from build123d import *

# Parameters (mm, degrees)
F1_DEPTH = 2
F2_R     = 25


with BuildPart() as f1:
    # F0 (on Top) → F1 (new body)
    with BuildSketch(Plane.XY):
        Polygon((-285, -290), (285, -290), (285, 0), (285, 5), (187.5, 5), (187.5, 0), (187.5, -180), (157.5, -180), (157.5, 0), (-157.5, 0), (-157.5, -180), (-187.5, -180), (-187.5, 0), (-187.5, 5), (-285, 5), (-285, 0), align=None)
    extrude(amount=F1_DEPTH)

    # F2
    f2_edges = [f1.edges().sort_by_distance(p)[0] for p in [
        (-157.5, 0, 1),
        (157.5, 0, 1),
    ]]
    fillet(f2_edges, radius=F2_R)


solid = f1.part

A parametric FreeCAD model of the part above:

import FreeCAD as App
import Part
import Sketcher


def edges_at(feature, points):
    """Names of the edges that pass closest to the given points."""
    edges = feature.Shape.Edges
    near = lambda p: min(range(len(edges)), key=lambda i: edges[i].distToShape(Part.Vertex(*p))[0])
    return sorted({f"Edge{near(p) + 1}" for p in points})


def add_polygon(sketch, points):
    """Adds a closed chain of lines whose ends are joined by coincident constraints."""
    first, n = sketch.GeometryCount, len(points)
    for a, b in zip(points, points[1:] + points[:1]):
        sketch.addGeometry(Part.LineSegment(App.Vector(*a, 0), App.Vector(*b, 0)), False)
    for i in range(n):
        sketch.addConstraint(Sketcher.Constraint("Coincident", first + i, 2, first + (i + 1) % n, 1))

doc = App.newDocument("Part")
body = doc.addObject("PartDesign::Body", "Body")

# Sketch on XY plane
sketch1 = body.newObject("Sketcher::SketchObject", "Sketch")
sketch1.AttachmentSupport = (doc.getObject("XY_Plane"), [""])
sketch1.MapMode = "FlatFace"
add_polygon(sketch1, [(-285, -290), (285, -290), (285, 5), (187.5, 5), (187.5, -180), (157.5, -180), (157.5, 0), (-157.5, 0), (-157.5, -180), (-187.5, -180), (-187.5, 5), (-285, 5)])  # lines 0-11
sketch1.addConstraint([
    Sketcher.Constraint("Horizontal", 0),
    Sketcher.Constraint("Vertical", 1),
    Sketcher.Constraint("Horizontal", 2),
    Sketcher.Constraint("Vertical", 3),
    Sketcher.Constraint("Horizontal", 4),
    Sketcher.Constraint("Vertical", 5),
    Sketcher.Constraint("Horizontal", 6),
    Sketcher.Constraint("Vertical", 7),
    Sketcher.Constraint("Horizontal", 8),
    Sketcher.Constraint("Vertical", 9),
    Sketcher.Constraint("Horizontal", 10),
    Sketcher.Constraint("Vertical", 11),
    Sketcher.Constraint("Symmetric", 5, 2, 6, 2, -1, 1),
    Sketcher.Constraint("Symmetric", 3, 2, 8, 2, -2),
    Sketcher.Constraint("Symmetric", 1, 2, 10, 2, -2),
    Sketcher.Constraint("DistanceX", 0, 1, 0, 2, 570.0),
    Sketcher.Constraint("DistanceX", 4, 2, 4, 1, 30.0),
    Sketcher.Constraint("DistanceX", 6, 2, 6, 1, 315.0),
    Sketcher.Constraint("DistanceY", 1, 1, 1, 2, 295.0),
    Sketcher.Constraint("DistanceY", 3, 2, 3, 1, 185.0),
    Sketcher.Constraint("DistanceY", 5, 1, 5, 2, 180.0),
])
pad1 = body.newObject("PartDesign::Pad", "Pad")
pad1.Profile = sketch1
pad1.Length = 2
doc.recompute()

fillet = body.newObject("PartDesign::Fillet", "Fillet")
fillet.Base = (pad1, edges_at(pad1, [(-157.5, 0, 1), (157.5, 0, 1)]))
fillet.Radius = 25

doc.recompute()
